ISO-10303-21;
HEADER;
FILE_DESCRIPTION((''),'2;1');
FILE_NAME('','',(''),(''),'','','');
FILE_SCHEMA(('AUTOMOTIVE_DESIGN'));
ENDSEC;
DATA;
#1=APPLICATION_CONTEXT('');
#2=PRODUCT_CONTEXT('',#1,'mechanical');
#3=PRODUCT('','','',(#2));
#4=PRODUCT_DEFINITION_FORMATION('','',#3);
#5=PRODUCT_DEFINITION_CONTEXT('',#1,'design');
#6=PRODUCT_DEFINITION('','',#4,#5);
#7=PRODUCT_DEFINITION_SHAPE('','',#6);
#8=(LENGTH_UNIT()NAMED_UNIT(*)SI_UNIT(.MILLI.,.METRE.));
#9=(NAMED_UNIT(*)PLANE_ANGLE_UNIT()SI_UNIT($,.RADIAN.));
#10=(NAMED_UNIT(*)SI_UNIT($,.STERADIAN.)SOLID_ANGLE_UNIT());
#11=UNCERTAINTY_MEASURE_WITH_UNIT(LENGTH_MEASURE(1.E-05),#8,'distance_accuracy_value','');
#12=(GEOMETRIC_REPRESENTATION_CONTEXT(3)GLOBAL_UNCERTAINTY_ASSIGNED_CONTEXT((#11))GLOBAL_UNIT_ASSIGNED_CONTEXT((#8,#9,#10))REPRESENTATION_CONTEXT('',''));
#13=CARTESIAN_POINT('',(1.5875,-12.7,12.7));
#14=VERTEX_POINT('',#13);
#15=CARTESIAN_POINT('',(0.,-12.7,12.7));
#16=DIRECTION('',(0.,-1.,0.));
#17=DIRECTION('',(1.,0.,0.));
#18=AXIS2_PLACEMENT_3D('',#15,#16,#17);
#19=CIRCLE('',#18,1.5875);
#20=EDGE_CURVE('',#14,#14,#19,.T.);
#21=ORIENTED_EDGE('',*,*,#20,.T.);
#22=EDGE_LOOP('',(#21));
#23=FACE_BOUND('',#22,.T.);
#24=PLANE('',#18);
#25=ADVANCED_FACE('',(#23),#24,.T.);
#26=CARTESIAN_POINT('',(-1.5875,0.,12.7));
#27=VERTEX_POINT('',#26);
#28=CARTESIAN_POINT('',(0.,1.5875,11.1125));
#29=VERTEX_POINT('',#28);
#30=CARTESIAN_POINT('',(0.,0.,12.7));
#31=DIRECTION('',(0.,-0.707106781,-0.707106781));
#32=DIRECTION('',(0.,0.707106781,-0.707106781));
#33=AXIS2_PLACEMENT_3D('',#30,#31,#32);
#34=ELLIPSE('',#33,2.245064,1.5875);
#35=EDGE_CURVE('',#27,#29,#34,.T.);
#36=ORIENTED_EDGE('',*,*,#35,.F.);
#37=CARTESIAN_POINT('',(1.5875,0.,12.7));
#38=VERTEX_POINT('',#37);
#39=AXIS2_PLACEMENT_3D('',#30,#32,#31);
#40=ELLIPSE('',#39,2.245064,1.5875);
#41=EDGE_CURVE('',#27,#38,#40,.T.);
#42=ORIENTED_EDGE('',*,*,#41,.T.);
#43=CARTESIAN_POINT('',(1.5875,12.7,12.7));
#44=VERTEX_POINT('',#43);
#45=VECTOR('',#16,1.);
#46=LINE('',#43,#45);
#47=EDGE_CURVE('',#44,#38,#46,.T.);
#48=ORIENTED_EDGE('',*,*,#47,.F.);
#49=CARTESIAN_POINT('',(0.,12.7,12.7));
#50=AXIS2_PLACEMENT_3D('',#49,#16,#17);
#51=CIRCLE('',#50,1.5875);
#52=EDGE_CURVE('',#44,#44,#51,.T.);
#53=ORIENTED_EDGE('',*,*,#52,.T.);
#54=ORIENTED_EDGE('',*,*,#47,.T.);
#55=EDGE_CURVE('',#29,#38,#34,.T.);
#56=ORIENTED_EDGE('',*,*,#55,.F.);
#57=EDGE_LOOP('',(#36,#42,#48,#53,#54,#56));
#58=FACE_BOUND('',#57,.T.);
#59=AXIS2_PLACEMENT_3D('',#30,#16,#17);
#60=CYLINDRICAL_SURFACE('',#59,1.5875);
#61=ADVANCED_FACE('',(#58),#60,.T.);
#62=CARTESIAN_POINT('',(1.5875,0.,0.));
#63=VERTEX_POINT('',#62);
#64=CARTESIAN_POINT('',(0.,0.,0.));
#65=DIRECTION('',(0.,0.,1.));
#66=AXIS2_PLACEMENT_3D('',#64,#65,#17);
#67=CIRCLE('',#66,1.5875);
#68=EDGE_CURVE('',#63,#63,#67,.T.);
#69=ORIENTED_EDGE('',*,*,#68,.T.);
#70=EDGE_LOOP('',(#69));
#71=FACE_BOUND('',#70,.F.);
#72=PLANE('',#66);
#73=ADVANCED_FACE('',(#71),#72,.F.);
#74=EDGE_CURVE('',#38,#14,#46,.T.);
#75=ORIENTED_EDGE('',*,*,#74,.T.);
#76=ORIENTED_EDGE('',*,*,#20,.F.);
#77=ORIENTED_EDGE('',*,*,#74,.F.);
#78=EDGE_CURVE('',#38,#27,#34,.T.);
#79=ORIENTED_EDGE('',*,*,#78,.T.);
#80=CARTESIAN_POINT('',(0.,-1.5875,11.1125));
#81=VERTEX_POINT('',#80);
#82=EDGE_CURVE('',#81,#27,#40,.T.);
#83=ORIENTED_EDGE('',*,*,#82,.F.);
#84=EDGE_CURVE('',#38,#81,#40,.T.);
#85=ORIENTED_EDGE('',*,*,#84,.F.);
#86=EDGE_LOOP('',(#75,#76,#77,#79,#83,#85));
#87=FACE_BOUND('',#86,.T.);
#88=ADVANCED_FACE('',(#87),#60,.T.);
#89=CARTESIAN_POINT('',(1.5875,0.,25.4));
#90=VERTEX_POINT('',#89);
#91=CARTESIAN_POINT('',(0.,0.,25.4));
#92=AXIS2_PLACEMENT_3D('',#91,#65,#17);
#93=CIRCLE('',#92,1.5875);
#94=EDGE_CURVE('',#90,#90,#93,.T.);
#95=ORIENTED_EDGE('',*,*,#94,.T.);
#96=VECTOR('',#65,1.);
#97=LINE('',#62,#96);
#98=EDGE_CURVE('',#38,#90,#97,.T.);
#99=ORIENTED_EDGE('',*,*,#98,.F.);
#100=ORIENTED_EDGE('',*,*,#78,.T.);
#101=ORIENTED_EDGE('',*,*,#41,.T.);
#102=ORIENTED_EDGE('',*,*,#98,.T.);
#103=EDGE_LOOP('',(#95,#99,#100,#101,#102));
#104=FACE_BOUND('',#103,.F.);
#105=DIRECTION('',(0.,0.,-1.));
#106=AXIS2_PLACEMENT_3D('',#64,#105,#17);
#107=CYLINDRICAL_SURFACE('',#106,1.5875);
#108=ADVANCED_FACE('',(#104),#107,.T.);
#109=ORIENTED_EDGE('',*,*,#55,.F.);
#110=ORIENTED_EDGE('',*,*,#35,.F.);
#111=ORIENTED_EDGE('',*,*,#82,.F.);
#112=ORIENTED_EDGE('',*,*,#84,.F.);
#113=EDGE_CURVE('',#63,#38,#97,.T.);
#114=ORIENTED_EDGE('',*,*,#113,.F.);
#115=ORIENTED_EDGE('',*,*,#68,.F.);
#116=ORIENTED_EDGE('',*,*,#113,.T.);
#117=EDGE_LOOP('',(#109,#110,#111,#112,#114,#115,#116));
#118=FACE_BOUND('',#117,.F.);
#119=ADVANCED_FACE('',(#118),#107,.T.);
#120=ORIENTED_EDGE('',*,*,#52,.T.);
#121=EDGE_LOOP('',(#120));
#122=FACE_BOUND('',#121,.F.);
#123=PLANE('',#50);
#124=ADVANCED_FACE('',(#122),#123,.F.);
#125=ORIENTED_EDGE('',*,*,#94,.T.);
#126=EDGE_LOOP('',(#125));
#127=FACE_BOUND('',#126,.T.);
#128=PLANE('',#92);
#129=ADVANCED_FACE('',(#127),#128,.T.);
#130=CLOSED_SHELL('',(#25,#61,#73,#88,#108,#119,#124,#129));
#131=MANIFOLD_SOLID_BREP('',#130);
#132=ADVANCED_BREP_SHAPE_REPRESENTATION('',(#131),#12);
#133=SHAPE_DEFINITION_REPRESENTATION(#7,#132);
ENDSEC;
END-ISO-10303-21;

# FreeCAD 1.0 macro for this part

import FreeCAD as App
import Part
import Sketcher

V = App.Vector
Q = App.Units.Quantity

doc = App.newDocument("Part")
body = doc.addObject("PartDesign::Body", "Body")

# Sketch on XY plane
sketch1 = body.newObject("Sketcher::SketchObject", "Sketch")
sketch1.AttachmentSupport = (doc.getObject("XY_Plane"), [""])
sketch1.MapMode = "FlatFace"
sketch1.addGeometry(Part.Circle(V(0, 0, 0), V(0, 0, 1), 1.6), False)
sketch1.addConstraint([
    Sketcher.Constraint("Coincident", 0, 3, -1, 1),
    Sketcher.Constraint("Diameter", 0, Q("0.125 in")),
])
pad1 = body.newObject("PartDesign::Pad", "Pad")
pad1.Profile = sketch1
pad1.Length = Q("1 in")

# Sketch on XZ plane
sketch2 = body.newObject("Sketcher::SketchObject", "Sketch001")
sketch2.AttachmentSupport = (doc.getObject("XZ_Plane"), [""])
sketch2.MapMode = "FlatFace"
sketch2.addGeometry(Part.Circle(V(0, 12.7, 0), V(0, 0, 1), 1.6), False)
sketch2.addConstraint([
    Sketcher.Constraint("PointOnObject", 0, 3, -2),
    Sketcher.Constraint("Diameter", 0, Q("0.125 in")),
    Sketcher.Constraint("DistanceY", -1, 1, 0, 3, Q("0.5 in")),
])
pad2 = body.newObject("PartDesign::Pad", "Pad001")
pad2.Profile = sketch2
pad2.Length = Q("1 in")
pad2.Midplane = True

doc.recompute()
